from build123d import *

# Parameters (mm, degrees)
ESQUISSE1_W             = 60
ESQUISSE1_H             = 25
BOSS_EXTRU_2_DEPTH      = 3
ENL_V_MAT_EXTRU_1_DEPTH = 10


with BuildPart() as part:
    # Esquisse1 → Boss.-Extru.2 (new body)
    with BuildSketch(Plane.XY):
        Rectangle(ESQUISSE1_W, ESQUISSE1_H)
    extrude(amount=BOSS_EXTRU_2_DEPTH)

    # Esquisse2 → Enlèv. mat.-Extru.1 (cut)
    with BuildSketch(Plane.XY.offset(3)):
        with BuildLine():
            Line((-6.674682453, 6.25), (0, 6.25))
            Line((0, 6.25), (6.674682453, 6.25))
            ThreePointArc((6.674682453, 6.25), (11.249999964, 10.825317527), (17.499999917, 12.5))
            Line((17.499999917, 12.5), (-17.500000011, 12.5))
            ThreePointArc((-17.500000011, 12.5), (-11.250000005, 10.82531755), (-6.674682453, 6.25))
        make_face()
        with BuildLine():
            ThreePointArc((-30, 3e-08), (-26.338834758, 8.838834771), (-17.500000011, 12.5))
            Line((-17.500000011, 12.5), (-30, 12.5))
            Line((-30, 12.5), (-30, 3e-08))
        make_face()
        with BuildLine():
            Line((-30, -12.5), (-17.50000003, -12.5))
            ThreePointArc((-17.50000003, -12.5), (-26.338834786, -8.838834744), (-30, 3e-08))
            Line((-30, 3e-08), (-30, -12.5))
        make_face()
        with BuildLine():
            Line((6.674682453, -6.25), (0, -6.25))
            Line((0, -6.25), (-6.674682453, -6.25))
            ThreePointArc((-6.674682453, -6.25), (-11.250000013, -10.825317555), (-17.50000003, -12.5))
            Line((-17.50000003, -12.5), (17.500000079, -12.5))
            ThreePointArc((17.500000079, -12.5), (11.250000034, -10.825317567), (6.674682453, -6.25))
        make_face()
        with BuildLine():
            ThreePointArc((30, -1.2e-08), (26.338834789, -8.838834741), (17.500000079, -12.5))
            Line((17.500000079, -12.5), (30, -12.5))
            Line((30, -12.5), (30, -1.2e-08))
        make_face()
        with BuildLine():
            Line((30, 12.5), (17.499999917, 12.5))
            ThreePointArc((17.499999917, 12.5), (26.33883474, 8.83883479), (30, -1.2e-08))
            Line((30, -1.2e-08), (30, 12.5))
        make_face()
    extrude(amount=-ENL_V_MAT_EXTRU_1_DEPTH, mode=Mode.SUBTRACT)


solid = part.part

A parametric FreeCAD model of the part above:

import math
import FreeCAD as App
import Part
import Sketcher
from FreeCAD import Vector
Q = App.Units.Quantity

doc = App.newDocument("Part")
body = doc.addObject("PartDesign::Body", "Body")

# Sketch on XY plane
sketch1 = body.newObject("Sketcher::SketchObject", "Sketch")
sketch1.AttachmentSupport = (doc.getObject("XY_Plane"), [""])
sketch1.MapMode = "FlatFace"
sketch1.addGeometry([
    Part.LineSegment(Vector(-30, 12, 0), Vector(-30, -12, 0)),
    Part.LineSegment(Vector(-30, -12, 0), Vector(30, -12, 0)),
    Part.LineSegment(Vector(30, -12, 0), Vector(30, 12, 0)),
    Part.LineSegment(Vector(30, 12, 0), Vector(-30, 12, 0)),
], False)
sketch1.addConstraint([
    Sketcher.Constraint("Coincident", 0, 2, 1, 1),
    Sketcher.Constraint("Coincident", 1, 2, 2, 1),
    Sketcher.Constraint("Coincident", 2, 2, 3, 1),
    Sketcher.Constraint("Coincident", 3, 2, 0, 1),
    Sketcher.Constraint("Vertical", 0),
    Sketcher.Constraint("Horizontal", 1),
    Sketcher.Constraint("Vertical", 2),
    Sketcher.Constraint("Horizontal", 3),
    Sketcher.Constraint("Symmetric", 0, 2, 2, 2, -1, 1),
    Sketcher.Constraint("DistanceX", 1, 1, 1, 2, Q("60 mm")),
    Sketcher.Constraint("DistanceY", 0, 2, 0, 1, Q("25 mm")),
])
pad1 = body.newObject("PartDesign::Pad", "Pad")
pad1.Profile = sketch1
pad1.Length = 3

# Sketch on XY plane
sketch2 = body.newObject("Sketcher::SketchObject", "Sketch001")
sketch2.AttachmentSupport = (doc.getObject("XY_Plane"), [""])
sketch2.MapMode = "FlatFace"
sketch2.AttachmentOffset = App.Placement(Vector(0, 0, 3), App.Rotation())
sketch2.addGeometry([
    Part.LineSegment(Vector(-7, 6, 0), Vector(7, 6, 0)),  # 0
    Part.ArcOfCircle(Part.Circle(Vector(17, 0, 0), Vector(0, 0, 1), 12), math.radians(90), math.radians(150)),  # 1
    Part.LineSegment(Vector(17, 12, 0), Vector(-18, 12, 0)),  # 2
    Part.ArcOfCircle(Part.Circle(Vector(-18, 0, 0), Vector(0, 0, 1), 12), math.radians(30), math.radians(90)),  # 3
    Part.ArcOfCircle(Part.Circle(Vector(-17, 0, 0), Vector(0, 0, 1), 13), math.radians(90), math.radians(180)),  # 4
    Part.LineSegment(Vector(-18, 12, 0), Vector(-30, 12, 0)),  # 5
    Part.LineSegment(Vector(-30, 12, 0), Vector(-30, 0, 0)),  # 6
    Part.LineSegment(Vector(-30, -12, 0), Vector(-18, -12, 0)),  # 7
    Part.ArcOfCircle(Part.Circle(Vector(-18, 0, 0), Vector(0, 0, 1), 12), math.radians(180), math.radians(270)),  # 8
    Part.LineSegment(Vector(-30, 0, 0), Vector(-30, -12, 0)),  # 9
    Part.LineSegment(Vector(7, -6, 0), Vector(-7, -6, 0)),  # 10
    Part.ArcOfCircle(Part.Circle(Vector(-17, 0, 0), Vector(0, 0, 1), 12), math.radians(-90), math.radians(-30)),  # 11
    Part.LineSegment(Vector(-18, -12, 0), Vector(18, -12, 0)),  # 12
    Part.ArcOfCircle(Part.Circle(Vector(18, 0, 0), Vector(0, 0, 1), 12), math.radians(-150), math.radians(-90)),  # 13
    Part.ArcOfCircle(Part.Circle(Vector(18, 0, 0), Vector(0, 0, 1), 12), math.radians(-90), math.radians(0)),  # 14
    Part.LineSegment(Vector(18, -12, 0), Vector(30, -12, 0)),  # 15
    Part.LineSegment(Vector(30, -12, 0), Vector(30, 0, 0)),  # 16
    Part.LineSegment(Vector(30, 12, 0), Vector(17, 12, 0)),  # 17
    Part.ArcOfCircle(Part.Circle(Vector(18, 0, 0), Vector(0, 0, 1), 12), math.radians(0), math.radians(90)),  # 18
    Part.LineSegment(Vector(30, 0, 0), Vector(30, 12, 0)),  # 19
], False)
sketch2.addConstraint([
    Sketcher.Constraint("Coincident", 0, 2, 1, 2),
    Sketcher.Constraint("Tangent", 1, 1, 2, 1),
    Sketcher.Constraint("Tangent", 2, 2, 3, 2),
    Sketcher.Constraint("Coincident", 3, 1, 0, 1),
    Sketcher.Constraint("Tangent", 4, 1, 5, 1),
    Sketcher.Constraint("Coincident", 5, 2, 6, 1),
    Sketcher.Constraint("Tangent", 6, 2, 4, 2),
    Sketcher.Constraint("Tangent", 7, 2, 8, 2),
    Sketcher.Constraint("Tangent", 8, 1, 9, 1),
    Sketcher.Constraint("Coincident", 9, 2, 7, 1),
    Sketcher.Constraint("Coincident", 10, 2, 11, 2),
    Sketcher.Constraint("Tangent", 11, 1, 12, 1),
    Sketcher.Constraint("Tangent", 12, 2, 13, 2),
    Sketcher.Constraint("Coincident", 13, 1, 10, 1),
    Sketcher.Constraint("Tangent", 14, 1, 15, 1),
    Sketcher.Constraint("Coincident", 15, 2, 16, 1),
    Sketcher.Constraint("Tangent", 16, 2, 14, 2),
    Sketcher.Constraint("Tangent", 17, 2, 18, 2),
    Sketcher.Constraint("Tangent", 18, 1, 19, 1),
    Sketcher.Constraint("Coincident", 19, 2, 17, 1),
    Sketcher.Constraint("Horizontal", 0),
    Sketcher.Constraint("Horizontal", 2),
    Sketcher.Constraint("Horizontal", 5),
    Sketcher.Constraint("Vertical", 6),
    Sketcher.Constraint("Horizontal", 7),
    Sketcher.Constraint("Vertical", 9),
    Sketcher.Constraint("Horizontal", 10),
    Sketcher.Constraint("Horizontal", 12),
    Sketcher.Constraint("Horizontal", 15),
    Sketcher.Constraint("Vertical", 16),
    Sketcher.Constraint("Horizontal", 17),
    Sketcher.Constraint("Vertical", 19),
    Sketcher.Constraint("Coincident", 4, 3, 3, 3),
    Sketcher.Constraint("Coincident", 8, 3, 3, 3),
    Sketcher.Constraint("Coincident", 11, 3, 3, 3),
    Sketcher.Constraint("Coincident", 13, 3, 1, 3),
    Sketcher.Constraint("Coincident", 14, 3, 1, 3),
    Sketcher.Constraint("Coincident", 18, 3, 1, 3),
    Sketcher.Constraint("Equal", 1, 3),
    Sketcher.Constraint("Equal", 3, 4),
    Sketcher.Constraint("Equal", 4, 8),
    Sketcher.Constraint("Equal", 8, 11),
    Sketcher.Constraint("Equal", 13, 14),
    Sketcher.Constraint("Equal", 14, 18),
    Sketcher.Constraint("Symmetric", 1, 3, 3, 3, -1, 1),
    Sketcher.Constraint("Vertical", 3, 1, 10, 2),
    Sketcher.Constraint("Radius", 1, Q("12.5 mm")),
    Sketcher.Constraint("DistanceX", 2, 2, 2, 1, Q("35 mm")),
    Sketcher.Constraint("DistanceY", 10, 2, 3, 1, Q("12.5 mm")),
])
pocket1 = body.newObject("PartDesign::Pocket", "Pocket")
pocket1.Profile = sketch2
pocket1.Length = 10

doc.recompute()
